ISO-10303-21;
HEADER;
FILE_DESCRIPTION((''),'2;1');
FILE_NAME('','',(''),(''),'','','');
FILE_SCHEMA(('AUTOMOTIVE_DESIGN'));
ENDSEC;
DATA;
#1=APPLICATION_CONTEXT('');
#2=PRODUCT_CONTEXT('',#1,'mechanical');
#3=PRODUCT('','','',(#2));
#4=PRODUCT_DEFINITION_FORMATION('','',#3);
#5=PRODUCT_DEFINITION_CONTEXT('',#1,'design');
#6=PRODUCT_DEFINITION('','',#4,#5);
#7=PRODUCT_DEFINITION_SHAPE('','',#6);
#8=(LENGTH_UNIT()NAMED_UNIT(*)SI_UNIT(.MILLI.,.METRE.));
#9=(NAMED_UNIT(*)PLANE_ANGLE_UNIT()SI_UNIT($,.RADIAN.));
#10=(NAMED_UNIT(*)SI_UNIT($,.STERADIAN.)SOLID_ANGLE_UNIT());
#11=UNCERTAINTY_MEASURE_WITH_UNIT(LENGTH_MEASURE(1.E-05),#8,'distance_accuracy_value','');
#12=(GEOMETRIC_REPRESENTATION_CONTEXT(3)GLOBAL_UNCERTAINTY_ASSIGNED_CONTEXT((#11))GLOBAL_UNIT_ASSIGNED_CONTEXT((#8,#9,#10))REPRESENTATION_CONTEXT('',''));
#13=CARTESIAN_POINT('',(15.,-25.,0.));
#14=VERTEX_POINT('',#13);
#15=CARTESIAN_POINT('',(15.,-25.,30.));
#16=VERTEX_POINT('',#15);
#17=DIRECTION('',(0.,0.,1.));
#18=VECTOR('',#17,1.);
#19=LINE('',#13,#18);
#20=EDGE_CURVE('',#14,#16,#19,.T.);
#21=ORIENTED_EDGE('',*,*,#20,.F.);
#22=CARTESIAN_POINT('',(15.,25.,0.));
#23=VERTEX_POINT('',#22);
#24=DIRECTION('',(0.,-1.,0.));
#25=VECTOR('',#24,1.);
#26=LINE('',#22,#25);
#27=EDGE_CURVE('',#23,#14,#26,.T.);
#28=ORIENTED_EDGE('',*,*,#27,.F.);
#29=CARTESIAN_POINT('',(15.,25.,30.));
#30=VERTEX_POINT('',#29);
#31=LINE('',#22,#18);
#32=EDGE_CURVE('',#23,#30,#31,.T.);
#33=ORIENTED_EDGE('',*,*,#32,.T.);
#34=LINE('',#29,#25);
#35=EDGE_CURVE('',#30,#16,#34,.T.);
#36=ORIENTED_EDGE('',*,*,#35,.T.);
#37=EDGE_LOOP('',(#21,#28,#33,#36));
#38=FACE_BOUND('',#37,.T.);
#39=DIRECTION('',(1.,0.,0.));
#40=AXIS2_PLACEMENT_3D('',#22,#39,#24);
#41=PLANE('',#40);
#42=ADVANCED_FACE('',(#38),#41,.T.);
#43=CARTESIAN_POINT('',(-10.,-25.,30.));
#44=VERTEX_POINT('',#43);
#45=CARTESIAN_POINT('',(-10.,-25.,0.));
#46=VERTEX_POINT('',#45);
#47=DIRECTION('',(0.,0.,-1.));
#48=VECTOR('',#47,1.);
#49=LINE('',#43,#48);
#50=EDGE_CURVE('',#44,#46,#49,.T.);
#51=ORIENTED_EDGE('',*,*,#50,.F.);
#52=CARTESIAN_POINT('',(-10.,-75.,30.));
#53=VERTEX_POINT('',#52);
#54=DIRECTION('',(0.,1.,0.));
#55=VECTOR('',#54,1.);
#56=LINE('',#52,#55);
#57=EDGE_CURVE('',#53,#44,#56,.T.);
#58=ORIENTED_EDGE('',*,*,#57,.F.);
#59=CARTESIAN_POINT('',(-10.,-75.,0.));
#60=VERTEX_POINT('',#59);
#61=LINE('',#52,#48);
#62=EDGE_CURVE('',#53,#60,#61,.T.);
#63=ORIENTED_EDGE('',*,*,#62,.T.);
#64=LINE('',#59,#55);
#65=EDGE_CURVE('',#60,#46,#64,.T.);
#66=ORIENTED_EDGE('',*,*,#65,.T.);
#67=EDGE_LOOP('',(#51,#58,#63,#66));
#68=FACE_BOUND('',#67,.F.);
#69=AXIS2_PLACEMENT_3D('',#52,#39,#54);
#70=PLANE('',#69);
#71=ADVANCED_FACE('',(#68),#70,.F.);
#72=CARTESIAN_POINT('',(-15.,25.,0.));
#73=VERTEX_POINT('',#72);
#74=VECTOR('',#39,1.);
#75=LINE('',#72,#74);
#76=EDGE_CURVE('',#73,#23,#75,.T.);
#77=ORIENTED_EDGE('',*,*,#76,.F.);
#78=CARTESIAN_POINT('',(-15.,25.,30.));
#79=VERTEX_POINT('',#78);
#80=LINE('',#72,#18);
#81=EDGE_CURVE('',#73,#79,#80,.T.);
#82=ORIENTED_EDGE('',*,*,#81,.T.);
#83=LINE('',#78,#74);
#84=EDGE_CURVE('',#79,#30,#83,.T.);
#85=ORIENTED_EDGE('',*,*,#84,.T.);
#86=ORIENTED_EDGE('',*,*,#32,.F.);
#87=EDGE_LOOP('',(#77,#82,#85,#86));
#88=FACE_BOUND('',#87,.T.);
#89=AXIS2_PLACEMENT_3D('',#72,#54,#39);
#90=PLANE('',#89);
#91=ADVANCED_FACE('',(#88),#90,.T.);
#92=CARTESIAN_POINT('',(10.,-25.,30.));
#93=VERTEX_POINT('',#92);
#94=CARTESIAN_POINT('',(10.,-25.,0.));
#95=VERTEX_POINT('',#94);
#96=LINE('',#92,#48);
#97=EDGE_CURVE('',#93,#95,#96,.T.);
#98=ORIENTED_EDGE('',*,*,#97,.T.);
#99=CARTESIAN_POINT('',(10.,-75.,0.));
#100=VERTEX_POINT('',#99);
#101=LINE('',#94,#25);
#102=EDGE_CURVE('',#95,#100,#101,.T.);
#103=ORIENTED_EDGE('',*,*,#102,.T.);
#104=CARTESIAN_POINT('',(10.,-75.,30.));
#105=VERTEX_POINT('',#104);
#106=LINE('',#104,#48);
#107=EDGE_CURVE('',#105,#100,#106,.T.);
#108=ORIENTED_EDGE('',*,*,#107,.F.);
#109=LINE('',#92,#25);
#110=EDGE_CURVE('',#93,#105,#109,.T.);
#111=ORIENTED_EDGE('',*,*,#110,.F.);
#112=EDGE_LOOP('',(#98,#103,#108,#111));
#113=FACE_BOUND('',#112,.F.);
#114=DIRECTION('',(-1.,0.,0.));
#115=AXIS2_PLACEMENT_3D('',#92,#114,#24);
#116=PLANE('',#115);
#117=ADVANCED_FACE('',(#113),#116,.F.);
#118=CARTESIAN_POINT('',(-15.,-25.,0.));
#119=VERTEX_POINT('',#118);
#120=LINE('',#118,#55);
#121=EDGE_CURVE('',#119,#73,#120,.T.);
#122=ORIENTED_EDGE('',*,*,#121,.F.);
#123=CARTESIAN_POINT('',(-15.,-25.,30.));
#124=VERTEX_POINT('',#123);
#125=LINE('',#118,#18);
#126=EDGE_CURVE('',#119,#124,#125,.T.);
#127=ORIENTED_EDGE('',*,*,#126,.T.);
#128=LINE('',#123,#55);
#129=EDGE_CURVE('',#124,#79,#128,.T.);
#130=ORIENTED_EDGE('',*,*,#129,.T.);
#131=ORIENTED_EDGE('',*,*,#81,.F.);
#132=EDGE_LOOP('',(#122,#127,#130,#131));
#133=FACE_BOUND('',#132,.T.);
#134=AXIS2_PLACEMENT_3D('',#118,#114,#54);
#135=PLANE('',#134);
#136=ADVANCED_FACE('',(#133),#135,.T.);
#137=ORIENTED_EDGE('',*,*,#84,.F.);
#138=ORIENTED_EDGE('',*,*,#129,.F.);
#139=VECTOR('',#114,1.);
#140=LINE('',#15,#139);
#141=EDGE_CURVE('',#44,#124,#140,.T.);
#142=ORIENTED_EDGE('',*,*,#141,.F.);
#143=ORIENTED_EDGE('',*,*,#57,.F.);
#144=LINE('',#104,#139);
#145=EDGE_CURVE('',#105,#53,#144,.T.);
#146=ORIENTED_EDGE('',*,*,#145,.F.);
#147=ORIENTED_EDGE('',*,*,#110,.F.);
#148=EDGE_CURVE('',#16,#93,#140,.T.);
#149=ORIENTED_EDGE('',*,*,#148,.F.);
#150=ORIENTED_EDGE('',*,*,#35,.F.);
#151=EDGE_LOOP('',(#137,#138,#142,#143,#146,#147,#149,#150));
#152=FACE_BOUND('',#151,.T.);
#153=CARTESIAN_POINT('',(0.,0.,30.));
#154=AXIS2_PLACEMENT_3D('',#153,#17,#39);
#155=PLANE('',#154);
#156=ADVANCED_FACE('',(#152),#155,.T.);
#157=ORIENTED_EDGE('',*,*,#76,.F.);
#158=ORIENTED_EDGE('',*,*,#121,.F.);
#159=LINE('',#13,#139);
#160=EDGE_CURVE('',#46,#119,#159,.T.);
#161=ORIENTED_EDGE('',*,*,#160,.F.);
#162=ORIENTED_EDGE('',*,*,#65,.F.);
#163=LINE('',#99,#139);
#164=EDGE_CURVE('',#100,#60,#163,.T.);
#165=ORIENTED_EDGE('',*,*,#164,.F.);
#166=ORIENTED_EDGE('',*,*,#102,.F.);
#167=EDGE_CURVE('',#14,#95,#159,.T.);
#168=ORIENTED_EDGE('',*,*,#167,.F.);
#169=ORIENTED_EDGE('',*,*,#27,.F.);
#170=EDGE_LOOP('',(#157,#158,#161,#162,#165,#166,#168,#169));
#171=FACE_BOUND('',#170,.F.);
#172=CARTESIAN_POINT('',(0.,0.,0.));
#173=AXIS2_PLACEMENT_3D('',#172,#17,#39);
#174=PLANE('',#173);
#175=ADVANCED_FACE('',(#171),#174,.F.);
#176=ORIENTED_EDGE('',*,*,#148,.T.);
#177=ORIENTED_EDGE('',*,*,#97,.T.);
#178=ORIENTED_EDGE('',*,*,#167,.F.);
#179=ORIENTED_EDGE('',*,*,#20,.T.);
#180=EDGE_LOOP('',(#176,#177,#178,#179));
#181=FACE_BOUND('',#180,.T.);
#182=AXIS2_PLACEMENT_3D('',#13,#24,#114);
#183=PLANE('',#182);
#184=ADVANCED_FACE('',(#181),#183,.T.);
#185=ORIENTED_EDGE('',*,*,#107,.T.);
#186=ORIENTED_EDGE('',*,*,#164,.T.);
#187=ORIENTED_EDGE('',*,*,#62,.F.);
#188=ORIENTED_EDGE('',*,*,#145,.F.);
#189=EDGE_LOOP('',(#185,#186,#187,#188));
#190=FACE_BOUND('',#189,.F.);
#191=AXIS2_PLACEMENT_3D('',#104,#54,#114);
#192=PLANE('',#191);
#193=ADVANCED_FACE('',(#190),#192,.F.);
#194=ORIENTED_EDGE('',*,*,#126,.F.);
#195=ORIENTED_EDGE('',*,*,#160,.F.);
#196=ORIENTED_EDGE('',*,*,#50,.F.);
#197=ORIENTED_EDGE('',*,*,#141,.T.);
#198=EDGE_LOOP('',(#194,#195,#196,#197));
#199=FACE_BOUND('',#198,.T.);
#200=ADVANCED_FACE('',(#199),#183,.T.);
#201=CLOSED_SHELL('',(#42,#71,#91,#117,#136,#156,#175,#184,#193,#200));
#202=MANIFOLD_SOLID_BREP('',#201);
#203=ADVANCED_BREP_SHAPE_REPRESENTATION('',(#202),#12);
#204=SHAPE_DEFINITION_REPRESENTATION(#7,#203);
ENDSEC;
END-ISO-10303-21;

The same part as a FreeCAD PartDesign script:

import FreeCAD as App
import Part
import Sketcher

V = App.Vector

doc = App.newDocument("Part")
body = doc.addObject("PartDesign::Body", "Body")

# Sketch on XY plane
sketch1 = doc.addObject("Sketcher::SketchObject", "Sketch")
body.addObject(sketch1)
sketch1.AttachmentSupport = (doc.XY_Plane, [""])
sketch1.MapMode = "FlatFace"
sketch1.addGeometry([
    Part.LineSegment(V(15, 25, 0), V(-15, 25, 0)),
    Part.LineSegment(V(-15, 25, 0), V(-15, -25, 0)),
    Part.LineSegment(V(-15, -25, 0), V(15, -25, 0)),
    Part.LineSegment(V(15, -25, 0), V(15, 25, 0)),
], False)
sketch1.addConstraint([
    Sketcher.Constraint("Coincident", 0, 2, 1, 1),
    Sketcher.Constraint("Coincident", 1, 2, 2, 1),
    Sketcher.Constraint("Coincident", 2, 2, 3, 1),
    Sketcher.Constraint("Coincident", 3, 2, 0, 1),
    Sketcher.Constraint("Horizontal", 0),
    Sketcher.Constraint("Vertical", 1),
    Sketcher.Constraint("Horizontal", 2),
    Sketcher.Constraint("Vertical", 3),
    Sketcher.Constraint("Symmetric", 0, 2, 2, 2, -1, 1),
    Sketcher.Constraint("DistanceX", 0, 2, 0, 1, 30.0),
    Sketcher.Constraint("DistanceY", 1, 2, 1, 1, 50.0),
])
pad1 = doc.addObject("PartDesign::Pad", "Pad")
body.addObject(pad1)
pad1.Profile = sketch1
pad1.Length = 30

# Sketch on XY plane
sketch2 = doc.addObject("Sketcher::SketchObject", "Sketch001")
body.addObject(sketch2)
sketch2.AttachmentSupport = (doc.XY_Plane, [""])
sketch2.MapMode = "FlatFace"
sketch2.AttachmentOffset = App.Placement(V(0, 0, 30), App.Rotation())
sketch2.addGeometry([
    Part.LineSegment(V(10, -25, 0), V(-10, -25, 0)),
    Part.LineSegment(V(-10, -25, 0), V(-10, -75, 0)),
    Part.LineSegment(V(-10, -75, 0), V(10, -75, 0)),
    Part.LineSegment(V(10, -75, 0), V(10, -25, 0)),
], False)
sketch2.addConstraint([
    Sketcher.Constraint("Coincident", 0, 2, 1, 1),
    Sketcher.Constraint("Coincident", 1, 2, 2, 1),
    Sketcher.Constraint("Coincident", 2, 2, 3, 1),
    Sketcher.Constraint("Coincident", 3, 2, 0, 1),
    Sketcher.Constraint("Horizontal", 0),
    Sketcher.Constraint("Vertical", 1),
    Sketcher.Constraint("Horizontal", 2),
    Sketcher.Constraint("Vertical", 3),
    Sketcher.Constraint("DistanceX", 0, 2, 0, 1, 20.0),
    Sketcher.Constraint("DistanceY", 1, 2, 1, 1, 50.0),
    Sketcher.Constraint("DistanceX", 0, 2, -1, 1, 10.0),
    Sketcher.Constraint("DistanceY", 0, 2, -1, 1, 25.0),
])
pad2 = doc.addObject("PartDesign::Pad", "Pad001")
body.addObject(pad2)
pad2.Profile = sketch2
pad2.Length = 30
pad2.Reversed = True

doc.recompute()
